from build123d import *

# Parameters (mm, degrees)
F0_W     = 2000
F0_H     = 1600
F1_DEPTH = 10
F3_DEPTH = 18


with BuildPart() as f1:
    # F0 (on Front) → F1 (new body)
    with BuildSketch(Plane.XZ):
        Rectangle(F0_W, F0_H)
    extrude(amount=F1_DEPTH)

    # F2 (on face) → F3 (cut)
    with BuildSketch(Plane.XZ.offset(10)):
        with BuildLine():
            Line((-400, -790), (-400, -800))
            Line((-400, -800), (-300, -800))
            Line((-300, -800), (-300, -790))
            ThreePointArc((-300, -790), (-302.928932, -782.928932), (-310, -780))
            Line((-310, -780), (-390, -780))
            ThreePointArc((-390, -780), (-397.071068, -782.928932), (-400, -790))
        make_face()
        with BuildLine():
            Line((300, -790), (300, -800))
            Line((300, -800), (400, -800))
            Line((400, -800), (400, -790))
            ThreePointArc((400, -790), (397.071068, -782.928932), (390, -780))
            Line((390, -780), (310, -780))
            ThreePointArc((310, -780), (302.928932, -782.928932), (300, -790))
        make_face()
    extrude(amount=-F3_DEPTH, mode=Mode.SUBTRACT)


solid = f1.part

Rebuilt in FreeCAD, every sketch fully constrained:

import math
import FreeCAD as App
import Part
import Sketcher
Q = App.Units.Quantity

doc = App.newDocument("Part")
params = doc.addObject("Spreadsheet::Sheet", "Params")
for row, (alias, value) in enumerate([
    ("sketch1_width", "2000 mm"),
    ("sketch1_height", "1600 mm"),
    ("pad1_length", "10 mm"),
    ("sketch2_radius", "9.999999 mm"),
    ("sketch2_width", "100 mm"),
    ("sketch2_height", "10 mm"),
    ("pocket1_length", "18 mm"),
], start=1):
    params.set(f"A{row}", alias)
    params.set(f"B{row}", "=" + value)
    params.setAlias(f"B{row}", alias)

body = doc.addObject("PartDesign::Body", "Body")

sketch1 = body.newObject("Sketcher::SketchObject", "Sketch")
sketch1.AttachmentSupport = (doc.getObject("XZ_Plane"), [""])
sketch1.MapMode = "FlatFace"
sketch1.addGeometry([
    Part.LineSegment(App.Vector(-1000, 800, 0), App.Vector(-1000, -800, 0)),
    Part.LineSegment(App.Vector(-1000, -800, 0), App.Vector(1000, -800, 0)),
    Part.LineSegment(App.Vector(1000, -800, 0), App.Vector(1000, 800, 0)),
    Part.LineSegment(App.Vector(1000, 800, 0), App.Vector(-1000, 800, 0)),
], False)
sketch1.addConstraint([
    Sketcher.Constraint("Coincident", 0, 2, 1, 1),
    Sketcher.Constraint("Coincident", 1, 2, 2, 1),
    Sketcher.Constraint("Coincident", 2, 2, 3, 1),
    Sketcher.Constraint("Coincident", 3, 2, 0, 1),
    Sketcher.Constraint("Vertical", 0),
    Sketcher.Constraint("Horizontal", 1),
    Sketcher.Constraint("Vertical", 2),
    Sketcher.Constraint("Horizontal", 3),
    Sketcher.Constraint("Symmetric", 0, 2, 2, 2, -1, 1),
    Sketcher.Constraint("DistanceX", 1, 1, 1, 2, Q("2000 mm")),
    Sketcher.Constraint("DistanceY", 0, 2, 0, 1, Q("1600 mm")),
])
sketch1.setExpression("Constraints[9]", "Params.sketch1_width")
sketch1.setExpression("Constraints[10]", "Params.sketch1_height")
pad1 = body.newObject("PartDesign::Pad", "Pad")
pad1.Profile = sketch1
pad1.setExpression("Length", "Params.pad1_length")

sketch2 = body.newObject("Sketcher::SketchObject", "Sketch001")
sketch2.AttachmentSupport = (doc.getObject("XZ_Plane"), [""])
sketch2.MapMode = "FlatFace"
sketch2.AttachmentOffset = App.Placement(App.Vector(0, 0, 10), App.Rotation())
sketch2.addGeometry([
    Part.LineSegment(App.Vector(-400, -790, 0), App.Vector(-400, -800, 0)),
    Part.LineSegment(App.Vector(-400, -800, 0), App.Vector(-300, -800, 0)),
    Part.LineSegment(App.Vector(-300, -800, 0), App.Vector(-300, -790, 0)),
    Part.ArcOfCircle(Part.Circle(App.Vector(-310, -790, 0), App.Vector(0, 0, 1), 10), math.radians(0), math.radians(90)),
    Part.LineSegment(App.Vector(-310, -780, 0), App.Vector(-390, -780, 0)),
    Part.ArcOfCircle(Part.Circle(App.Vector(-390, -790, 0), App.Vector(0, 0, 1), 10), math.radians(90), math.radians(180)),
    Part.LineSegment(App.Vector(300, -790, 0), App.Vector(300, -800, 0)),
    Part.LineSegment(App.Vector(300, -800, 0), App.Vector(400, -800, 0)),
    Part.LineSegment(App.Vector(400, -800, 0), App.Vector(400, -790, 0)),
    Part.ArcOfCircle(Part.Circle(App.Vector(390, -790, 0), App.Vector(0, 0, 1), 10), math.radians(0), math.radians(90)),
    Part.LineSegment(App.Vector(390, -780, 0), App.Vector(310, -780, 0)),
    Part.ArcOfCircle(Part.Circle(App.Vector(310, -790, 0), App.Vector(0, 0, 1), 10), math.radians(90), math.radians(180)),
], False)
sketch2.addConstraint([
    Sketcher.Constraint("Coincident", 0, 2, 1, 1),
    Sketcher.Constraint("Coincident", 1, 2, 2, 1),
    Sketcher.Constraint("Tangent", 2, 2, 3, 1),
    Sketcher.Constraint("Tangent", 3, 2, 4, 1),
    Sketcher.Constraint("Tangent", 4, 2, 5, 1),
    Sketcher.Constraint("Tangent", 5, 2, 0, 1),
    Sketcher.Constraint("Coincident", 6, 2, 7, 1),
    Sketcher.Constraint("Coincident", 7, 2, 8, 1),
    Sketcher.Constraint("Tangent", 8, 2, 9, 1),
    Sketcher.Constraint("Tangent", 9, 2, 10, 1),
    Sketcher.Constraint("Tangent", 10, 2, 11, 1),
    Sketcher.Constraint("Tangent", 11, 2, 6, 1),
    Sketcher.Constraint("Vertical", 0),
    Sketcher.Constraint("Horizontal", 1),
    Sketcher.Constraint("Vertical", 2),
    Sketcher.Constraint("Horizontal", 4),
    Sketcher.Constraint("Vertical", 6),
    Sketcher.Constraint("Horizontal", 7),
    Sketcher.Constraint("Vertical", 8),
    Sketcher.Constraint("Horizontal", 10),
    Sketcher.Constraint("Equal", 3, 5),
    Sketcher.Constraint("Equal", 5, 9),
    Sketcher.Constraint("Equal", 9, 11),
    Sketcher.Constraint("Symmetric", 5, 3, 9, 3, -2),
    Sketcher.Constraint("Symmetric", 1, 2, 6, 2, -2),
    Sketcher.Constraint("Radius", 3, Q("9.999999 mm")),
    Sketcher.Constraint("DistanceX", 1, 1, 1, 2, Q("100 mm")),
    Sketcher.Constraint("DistanceY", 0, 2, 0, 1, Q("10 mm")),
    Sketcher.Constraint("DistanceX", 3, 3, -1, 1, Q("309.999999 mm")),
    Sketcher.Constraint("DistanceY", 3, 3, -1, 1, Q("789.999999 mm")),
])
sketch2.setExpression("Constraints[25]", "Params.sketch2_radius")
sketch2.setExpression("Constraints[26]", "Params.sketch2_width")
sketch2.setExpression("Constraints[27]", "Params.sketch2_height")
pocket1 = body.newObject("PartDesign::Pocket", "Pocket")
pocket1.Profile = sketch2
pocket1.setExpression("Length", "Params.pocket1_length")

doc.recompute()
